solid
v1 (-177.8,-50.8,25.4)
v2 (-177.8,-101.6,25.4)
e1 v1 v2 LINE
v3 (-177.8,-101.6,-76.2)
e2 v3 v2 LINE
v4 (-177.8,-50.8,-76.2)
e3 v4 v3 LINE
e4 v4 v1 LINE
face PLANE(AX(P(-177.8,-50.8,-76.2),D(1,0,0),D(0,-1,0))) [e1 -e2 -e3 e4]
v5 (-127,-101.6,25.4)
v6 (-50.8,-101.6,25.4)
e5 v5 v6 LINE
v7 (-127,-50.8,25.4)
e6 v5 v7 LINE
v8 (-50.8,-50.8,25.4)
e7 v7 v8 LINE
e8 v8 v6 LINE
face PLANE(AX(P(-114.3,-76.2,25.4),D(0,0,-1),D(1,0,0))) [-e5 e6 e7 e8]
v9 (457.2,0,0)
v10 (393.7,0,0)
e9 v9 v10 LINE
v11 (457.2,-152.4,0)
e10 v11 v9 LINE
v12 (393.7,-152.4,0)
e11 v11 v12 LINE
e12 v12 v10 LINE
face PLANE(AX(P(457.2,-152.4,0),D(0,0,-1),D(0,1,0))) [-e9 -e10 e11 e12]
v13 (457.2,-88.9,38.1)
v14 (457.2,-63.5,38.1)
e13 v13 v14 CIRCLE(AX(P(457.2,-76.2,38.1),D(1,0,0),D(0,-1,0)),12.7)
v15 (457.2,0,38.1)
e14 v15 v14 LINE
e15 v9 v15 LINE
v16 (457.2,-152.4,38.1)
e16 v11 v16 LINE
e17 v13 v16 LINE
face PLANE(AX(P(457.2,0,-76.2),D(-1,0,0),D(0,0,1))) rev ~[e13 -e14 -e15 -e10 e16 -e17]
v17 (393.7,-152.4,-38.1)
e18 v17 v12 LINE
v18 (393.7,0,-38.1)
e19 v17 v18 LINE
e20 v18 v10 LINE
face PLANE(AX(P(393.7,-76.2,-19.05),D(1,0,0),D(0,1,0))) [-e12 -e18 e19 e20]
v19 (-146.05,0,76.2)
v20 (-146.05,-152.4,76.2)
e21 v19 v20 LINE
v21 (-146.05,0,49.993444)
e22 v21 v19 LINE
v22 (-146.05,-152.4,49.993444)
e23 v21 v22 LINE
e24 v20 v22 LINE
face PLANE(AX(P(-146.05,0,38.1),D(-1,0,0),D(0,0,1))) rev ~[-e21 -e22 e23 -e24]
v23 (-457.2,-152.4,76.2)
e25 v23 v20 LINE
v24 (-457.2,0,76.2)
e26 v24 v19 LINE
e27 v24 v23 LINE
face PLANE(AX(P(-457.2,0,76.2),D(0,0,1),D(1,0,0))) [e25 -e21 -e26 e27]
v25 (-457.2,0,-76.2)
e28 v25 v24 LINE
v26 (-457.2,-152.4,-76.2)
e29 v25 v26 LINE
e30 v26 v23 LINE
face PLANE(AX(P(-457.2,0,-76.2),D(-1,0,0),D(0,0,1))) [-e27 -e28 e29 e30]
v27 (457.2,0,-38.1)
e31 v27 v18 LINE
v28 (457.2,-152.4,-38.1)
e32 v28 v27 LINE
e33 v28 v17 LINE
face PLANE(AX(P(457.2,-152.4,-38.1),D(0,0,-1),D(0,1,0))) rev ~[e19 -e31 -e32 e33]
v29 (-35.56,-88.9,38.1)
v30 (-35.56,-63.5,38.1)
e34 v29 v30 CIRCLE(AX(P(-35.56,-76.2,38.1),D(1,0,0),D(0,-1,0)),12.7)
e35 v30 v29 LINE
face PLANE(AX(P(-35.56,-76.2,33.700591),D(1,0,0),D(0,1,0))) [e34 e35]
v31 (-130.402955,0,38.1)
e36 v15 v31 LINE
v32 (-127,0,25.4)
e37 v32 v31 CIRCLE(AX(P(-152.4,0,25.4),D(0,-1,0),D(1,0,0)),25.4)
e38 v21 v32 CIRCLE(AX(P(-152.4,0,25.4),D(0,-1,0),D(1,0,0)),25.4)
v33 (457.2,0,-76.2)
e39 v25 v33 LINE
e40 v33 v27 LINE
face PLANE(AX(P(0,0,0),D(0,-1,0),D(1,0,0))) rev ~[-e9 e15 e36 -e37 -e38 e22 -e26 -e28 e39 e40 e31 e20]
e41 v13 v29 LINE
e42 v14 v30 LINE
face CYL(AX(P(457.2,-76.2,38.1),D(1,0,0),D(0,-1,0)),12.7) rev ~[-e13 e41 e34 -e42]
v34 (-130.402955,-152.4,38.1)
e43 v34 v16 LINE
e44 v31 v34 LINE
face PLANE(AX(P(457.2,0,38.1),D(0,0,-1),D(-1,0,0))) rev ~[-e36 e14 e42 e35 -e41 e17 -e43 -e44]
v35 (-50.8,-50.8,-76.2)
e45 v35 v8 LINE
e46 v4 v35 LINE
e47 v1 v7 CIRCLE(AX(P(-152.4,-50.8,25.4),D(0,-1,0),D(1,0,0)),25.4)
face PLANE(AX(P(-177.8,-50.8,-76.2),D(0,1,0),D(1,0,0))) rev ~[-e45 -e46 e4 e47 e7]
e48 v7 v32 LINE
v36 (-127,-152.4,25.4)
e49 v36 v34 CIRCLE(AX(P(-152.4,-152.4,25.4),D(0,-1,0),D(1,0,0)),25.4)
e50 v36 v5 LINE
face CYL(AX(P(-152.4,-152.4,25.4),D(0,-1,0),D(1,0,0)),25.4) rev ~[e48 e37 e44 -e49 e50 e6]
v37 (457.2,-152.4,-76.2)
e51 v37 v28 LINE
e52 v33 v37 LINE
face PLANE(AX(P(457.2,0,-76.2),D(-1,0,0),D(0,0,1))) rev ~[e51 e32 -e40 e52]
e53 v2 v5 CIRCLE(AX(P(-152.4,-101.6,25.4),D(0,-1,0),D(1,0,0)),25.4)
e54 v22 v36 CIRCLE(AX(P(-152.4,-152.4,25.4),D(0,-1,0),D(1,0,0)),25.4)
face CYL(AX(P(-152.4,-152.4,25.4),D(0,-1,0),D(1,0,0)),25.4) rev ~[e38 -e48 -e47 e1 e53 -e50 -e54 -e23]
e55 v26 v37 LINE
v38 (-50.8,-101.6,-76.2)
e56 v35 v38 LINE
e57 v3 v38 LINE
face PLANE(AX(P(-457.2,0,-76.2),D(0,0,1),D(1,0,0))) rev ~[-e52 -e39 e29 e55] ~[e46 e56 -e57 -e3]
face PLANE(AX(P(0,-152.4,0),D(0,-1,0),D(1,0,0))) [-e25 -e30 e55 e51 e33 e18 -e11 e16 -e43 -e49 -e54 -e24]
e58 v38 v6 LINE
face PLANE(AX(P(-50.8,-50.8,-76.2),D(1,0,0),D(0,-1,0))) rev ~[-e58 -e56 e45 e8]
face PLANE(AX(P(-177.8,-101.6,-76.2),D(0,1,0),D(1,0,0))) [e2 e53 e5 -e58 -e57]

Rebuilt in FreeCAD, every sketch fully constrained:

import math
import FreeCAD as App
import Part
import Sketcher
Q = App.Units.Quantity

doc = App.newDocument("Part")
params = doc.addObject("Spreadsheet::Sheet", "Params")
for row, (alias, value) in enumerate([
    ("sketch1_width", "36 in"),
    ("sketch1_height", "6 in"),
    ("pad1_length", "6 in"),
    ("sketch2_width", "5 in"),
    ("sketch2_height", "2 in"),
    ("pocket1_length", "4 in"),
    ("sketch3_diameter", "2 in"),
    ("pocket2_length", "13.3 in"),
    ("sketch4_height", "1.5 in"),
    ("sketch4_width", "23.75 in"),
    ("pocket3_length", "10.8 in"),
    ("sketch5_radius", "0.5 in"),
    ("pocket4_length", "19.4 in"),
    ("sketch6_width", "6 in"),
    ("sketch6_height", "1.5 in"),
    ("pocket5_length", "2.5 in"),
], start=1):
    params.set(f"A{row}", alias)
    params.set(f"B{row}", "=" + value)
    params.setAlias(f"B{row}", alias)

body = doc.addObject("PartDesign::Body", "Body")

# Sketch on XZ plane
sketch1 = body.newObject("Sketcher::SketchObject", "Sketch")
sketch1.AttachmentSupport = (doc.getObject("XZ_Plane"), [""])
sketch1.MapMode = "FlatFace"
sketch1.addGeometry([
    Part.LineSegment(App.Vector(-457, 76, 0), App.Vector(-457, -76, 0)),
    Part.LineSegment(App.Vector(-457, -76, 0), App.Vector(457, -76, 0)),
    Part.LineSegment(App.Vector(457, -76, 0), App.Vector(457, 76, 0)),
    Part.LineSegment(App.Vector(457, 76, 0), App.Vector(-457, 76, 0)),
], False)
sketch1.addConstraint([
    Sketcher.Constraint("Coincident", 0, 2, 1, 1),
    Sketcher.Constraint("Coincident", 1, 2, 2, 1),
    Sketcher.Constraint("Coincident", 2, 2, 3, 1),
    Sketcher.Constraint("Coincident", 3, 2, 0, 1),
    Sketcher.Constraint("Vertical", 0),
    Sketcher.Constraint("Horizontal", 1),
    Sketcher.Constraint("Vertical", 2),
    Sketcher.Constraint("Horizontal", 3),
    Sketcher.Constraint("Symmetric", 0, 2, 2, 2, -1, 1),
    Sketcher.Constraint("DistanceX", 1, 1, 1, 2, Q("36 in")),
    Sketcher.Constraint("DistanceY", 0, 2, 0, 1, Q("6 in")),
])
sketch1.setExpression("Constraints[9]", "Params.sketch1_width")
sketch1.setExpression("Constraints[10]", "Params.sketch1_height")
pad1 = body.newObject("PartDesign::Pad", "Pad")
pad1.Profile = sketch1
pad1.setExpression("Length", "Params.pad1_length")

# Sketch on XY plane
sketch2 = body.newObject("Sketcher::SketchObject", "Sketch001")
sketch2.AttachmentSupport = (doc.getObject("XY_Plane"), [""])
sketch2.MapMode = "FlatFace"
sketch2.AttachmentOffset = App.Placement(App.Vector(0, 0, -3 * 25.4), App.Rotation())
sketch2.addGeometry([
    Part.LineSegment(App.Vector(-178, -102, 0), App.Vector(-178, -51, 0)),
    Part.LineSegment(App.Vector(-178, -51, 0), App.Vector(-51, -51, 0)),
    Part.LineSegment(App.Vector(-51, -51, 0), App.Vector(-51, -102, 0)),
    Part.LineSegment(App.Vector(-51, -102, 0), App.Vector(-178, -102, 0)),
], False)
sketch2.addConstraint([
    Sketcher.Constraint("Coincident", 0, 2, 1, 1),
    Sketcher.Constraint("Coincident", 1, 2, 2, 1),
    Sketcher.Constraint("Coincident", 2, 2, 3, 1),
    Sketcher.Constraint("Coincident", 3, 2, 0, 1),
    Sketcher.Constraint("Vertical", 0),
    Sketcher.Constraint("Horizontal", 1),
    Sketcher.Constraint("Vertical", 2),
    Sketcher.Constraint("Horizontal", 3),
    Sketcher.Constraint("DistanceX", 1, 1, 1, 2, Q("5 in")),
    Sketcher.Constraint("DistanceY", 0, 1, 0, 2, Q("2 in")),
    Sketcher.Constraint("DistanceX", 0, 2, -1, 1, Q("7 in")),
    Sketcher.Constraint("DistanceY", 0, 2, -1, 1, Q("2 in")),
])
sketch2.setExpression("Constraints[8]", "Params.sketch2_width")
sketch2.setExpression("Constraints[9]", "Params.sketch2_height")
pocket1 = body.newObject("PartDesign::Pocket", "Pocket")
pocket1.Profile = sketch2
pocket1.setExpression("Length", "Params.pocket1_length")
pocket1.Reversed = True

# Sketch on XZ plane
sketch3 = body.newObject("Sketcher::SketchObject", "Sketch002")
sketch3.AttachmentSupport = (doc.getObject("XZ_Plane"), [""])
sketch3.MapMode = "FlatFace"
sketch3.AttachmentOffset = App.Placement(App.Vector(0, 0, 6 * 25.4), App.Rotation())
sketch3.addGeometry(Part.Circle(App.Vector(-152, 25, 0), App.Vector(0, 0, 1), 25), False)
sketch3.addConstraint([
    Sketcher.Constraint("Diameter", 0, Q("2 in")),
    Sketcher.Constraint("DistanceX", 0, 3, -1, 1, Q("6 in")),
    Sketcher.Constraint("DistanceY", -1, 1, 0, 3, Q("1 in")),
])
sketch3.setExpression("Constraints[0]", "Params.sketch3_diameter")
pocket2 = body.newObject("PartDesign::Pocket", "Pocket001")
pocket2.Profile = sketch3
pocket2.setExpression("Length", "Params.pocket2_length")

# Sketch on XZ plane
sketch4 = body.newObject("Sketcher::SketchObject", "Sketch003")
sketch4.AttachmentSupport = (doc.getObject("XZ_Plane"), [""])
sketch4.MapMode = "FlatFace"
sketch4.addGeometry([
    Part.LineSegment(App.Vector(-146, 38, 0), App.Vector(-146, 76, 0)),
    Part.LineSegment(App.Vector(-146, 76, 0), App.Vector(457, 76, 0)),
    Part.LineSegment(App.Vector(457, 76, 0), App.Vector(457, 38, 0)),
    Part.LineSegment(App.Vector(457, 38, 0), App.Vector(-146, 38, 0)),
], False)
sketch4.addConstraint([
    Sketcher.Constraint("Coincident", 0, 2, 1, 1),
    Sketcher.Constraint("Coincident", 1, 2, 2, 1),
    Sketcher.Constraint("Coincident", 2, 2, 3, 1),
    Sketcher.Constraint("Coincident", 3, 2, 0, 1),
    Sketcher.Constraint("Vertical", 0),
    Sketcher.Constraint("Horizontal", 1),
    Sketcher.Constraint("Vertical", 2),
    Sketcher.Constraint("Horizontal", 3),
    Sketcher.Constraint("DistanceY", 0, 1, 0, 2, Q("1.5 in")),
    Sketcher.Constraint("DistanceY", -1, 1, 0, 2, Q("3 in")),
    Sketcher.Constraint("DistanceX", -1, 1, 1, 2, Q("18 in")),
    Sketcher.Constraint("DistanceX", 1, 1, 1, 2, Q("23.75 in")),
])
sketch4.setExpression("Constraints[8]", "Params.sketch4_height")
sketch4.setExpression("Constraints[11]", "Params.sketch4_width")
pocket3 = body.newObject("PartDesign::Pocket", "Pocket002")
pocket3.Profile = sketch4
pocket3.setExpression("Length", "Params.pocket3_length")
pocket3.Reversed = True

# Sketch on YZ plane
sketch5 = body.newObject("Sketcher::SketchObject", "Sketch004")
sketch5.AttachmentSupport = (doc.getObject("YZ_Plane"), [""])
sketch5.MapMode = "FlatFace"
sketch5.AttachmentOffset = App.Placement(App.Vector(0, 0, 18 * 25.4), App.Rotation())
sketch5.addGeometry([
    Part.ArcOfCircle(Part.Circle(App.Vector(-76, 38, 0), App.Vector(0, 0, 1), 13), math.radians(180), math.radians(360)),
    Part.LineSegment(App.Vector(-64, 38, 0), App.Vector(-89, 38, 0)),
], False)
sketch5.addConstraint([
    Sketcher.Constraint("Coincident", 0, 1, 1, 2),
    Sketcher.Constraint("Coincident", 1, 1, 0, 2),
    Sketcher.Constraint("Horizontal", 1),
    Sketcher.Constraint("Radius", 0, Q("0.5 in")),
    Sketcher.Constraint("DistanceX", 0, 3, -1, 1, Q("3 in")),
    Sketcher.Constraint("DistanceY", -1, 1, 0, 3, Q("1.5 in")),
    Sketcher.Constraint("DistanceY", -1, 1, 0, 1, Q("1.5 in")),
])
sketch5.setExpression("Constraints[3]", "Params.sketch5_radius")
pocket4 = body.newObject("PartDesign::Pocket", "Pocket003")
pocket4.Profile = sketch5
pocket4.setExpression("Length", "Params.pocket4_length")

# Sketch on YZ plane
sketch6 = body.newObject("Sketcher::SketchObject", "Sketch005")
sketch6.AttachmentSupport = (doc.getObject("YZ_Plane"), [""])
sketch6.MapMode = "FlatFace"
sketch6.AttachmentOffset = App.Placement(App.Vector(0, 0, 18 * 25.4), App.Rotation())
sketch6.addGeometry([
    Part.LineSegment(App.Vector(-152, 0, 0), App.Vector(-152, -38, 0)),
    Part.LineSegment(App.Vector(-152, -38, 0), App.Vector(0, -38, 0)),
    Part.LineSegment(App.Vector(0, -38, 0), App.Vector(0, 0, 0)),
    Part.LineSegment(App.Vector(0, 0, 0), App.Vector(-152, 0, 0)),
], False)
sketch6.addConstraint([
    Sketcher.Constraint("Coincident", 0, 2, 1, 1),
    Sketcher.Constraint("Coincident", 1, 2, 2, 1),
    Sketcher.Constraint("Coincident", 2, 2, 3, 1),
    Sketcher.Constraint("Coincident", 3, 2, 0, 1),
    Sketcher.Constraint("Vertical", 0),
    Sketcher.Constraint("Horizontal", 1),
    Sketcher.Constraint("Vertical", 2),
    Sketcher.Constraint("Horizontal", 3),
    Sketcher.Constraint("Coincident", 2, 2, -1, 1),
    Sketcher.Constraint("DistanceX", 1, 1, 1, 2, Q("6 in")),
    Sketcher.Constraint("DistanceY", 0, 2, 0, 1, Q("1.5 in")),
])
sketch6.setExpression("Constraints[9]", "Params.sketch6_width")
sketch6.setExpression("Constraints[10]", "Params.sketch6_height")
pocket5 = body.newObject("PartDesign::Pocket", "Pocket004")
pocket5.Profile = sketch6
pocket5.setExpression("Length", "Params.pocket5_length")

doc.recompute()
